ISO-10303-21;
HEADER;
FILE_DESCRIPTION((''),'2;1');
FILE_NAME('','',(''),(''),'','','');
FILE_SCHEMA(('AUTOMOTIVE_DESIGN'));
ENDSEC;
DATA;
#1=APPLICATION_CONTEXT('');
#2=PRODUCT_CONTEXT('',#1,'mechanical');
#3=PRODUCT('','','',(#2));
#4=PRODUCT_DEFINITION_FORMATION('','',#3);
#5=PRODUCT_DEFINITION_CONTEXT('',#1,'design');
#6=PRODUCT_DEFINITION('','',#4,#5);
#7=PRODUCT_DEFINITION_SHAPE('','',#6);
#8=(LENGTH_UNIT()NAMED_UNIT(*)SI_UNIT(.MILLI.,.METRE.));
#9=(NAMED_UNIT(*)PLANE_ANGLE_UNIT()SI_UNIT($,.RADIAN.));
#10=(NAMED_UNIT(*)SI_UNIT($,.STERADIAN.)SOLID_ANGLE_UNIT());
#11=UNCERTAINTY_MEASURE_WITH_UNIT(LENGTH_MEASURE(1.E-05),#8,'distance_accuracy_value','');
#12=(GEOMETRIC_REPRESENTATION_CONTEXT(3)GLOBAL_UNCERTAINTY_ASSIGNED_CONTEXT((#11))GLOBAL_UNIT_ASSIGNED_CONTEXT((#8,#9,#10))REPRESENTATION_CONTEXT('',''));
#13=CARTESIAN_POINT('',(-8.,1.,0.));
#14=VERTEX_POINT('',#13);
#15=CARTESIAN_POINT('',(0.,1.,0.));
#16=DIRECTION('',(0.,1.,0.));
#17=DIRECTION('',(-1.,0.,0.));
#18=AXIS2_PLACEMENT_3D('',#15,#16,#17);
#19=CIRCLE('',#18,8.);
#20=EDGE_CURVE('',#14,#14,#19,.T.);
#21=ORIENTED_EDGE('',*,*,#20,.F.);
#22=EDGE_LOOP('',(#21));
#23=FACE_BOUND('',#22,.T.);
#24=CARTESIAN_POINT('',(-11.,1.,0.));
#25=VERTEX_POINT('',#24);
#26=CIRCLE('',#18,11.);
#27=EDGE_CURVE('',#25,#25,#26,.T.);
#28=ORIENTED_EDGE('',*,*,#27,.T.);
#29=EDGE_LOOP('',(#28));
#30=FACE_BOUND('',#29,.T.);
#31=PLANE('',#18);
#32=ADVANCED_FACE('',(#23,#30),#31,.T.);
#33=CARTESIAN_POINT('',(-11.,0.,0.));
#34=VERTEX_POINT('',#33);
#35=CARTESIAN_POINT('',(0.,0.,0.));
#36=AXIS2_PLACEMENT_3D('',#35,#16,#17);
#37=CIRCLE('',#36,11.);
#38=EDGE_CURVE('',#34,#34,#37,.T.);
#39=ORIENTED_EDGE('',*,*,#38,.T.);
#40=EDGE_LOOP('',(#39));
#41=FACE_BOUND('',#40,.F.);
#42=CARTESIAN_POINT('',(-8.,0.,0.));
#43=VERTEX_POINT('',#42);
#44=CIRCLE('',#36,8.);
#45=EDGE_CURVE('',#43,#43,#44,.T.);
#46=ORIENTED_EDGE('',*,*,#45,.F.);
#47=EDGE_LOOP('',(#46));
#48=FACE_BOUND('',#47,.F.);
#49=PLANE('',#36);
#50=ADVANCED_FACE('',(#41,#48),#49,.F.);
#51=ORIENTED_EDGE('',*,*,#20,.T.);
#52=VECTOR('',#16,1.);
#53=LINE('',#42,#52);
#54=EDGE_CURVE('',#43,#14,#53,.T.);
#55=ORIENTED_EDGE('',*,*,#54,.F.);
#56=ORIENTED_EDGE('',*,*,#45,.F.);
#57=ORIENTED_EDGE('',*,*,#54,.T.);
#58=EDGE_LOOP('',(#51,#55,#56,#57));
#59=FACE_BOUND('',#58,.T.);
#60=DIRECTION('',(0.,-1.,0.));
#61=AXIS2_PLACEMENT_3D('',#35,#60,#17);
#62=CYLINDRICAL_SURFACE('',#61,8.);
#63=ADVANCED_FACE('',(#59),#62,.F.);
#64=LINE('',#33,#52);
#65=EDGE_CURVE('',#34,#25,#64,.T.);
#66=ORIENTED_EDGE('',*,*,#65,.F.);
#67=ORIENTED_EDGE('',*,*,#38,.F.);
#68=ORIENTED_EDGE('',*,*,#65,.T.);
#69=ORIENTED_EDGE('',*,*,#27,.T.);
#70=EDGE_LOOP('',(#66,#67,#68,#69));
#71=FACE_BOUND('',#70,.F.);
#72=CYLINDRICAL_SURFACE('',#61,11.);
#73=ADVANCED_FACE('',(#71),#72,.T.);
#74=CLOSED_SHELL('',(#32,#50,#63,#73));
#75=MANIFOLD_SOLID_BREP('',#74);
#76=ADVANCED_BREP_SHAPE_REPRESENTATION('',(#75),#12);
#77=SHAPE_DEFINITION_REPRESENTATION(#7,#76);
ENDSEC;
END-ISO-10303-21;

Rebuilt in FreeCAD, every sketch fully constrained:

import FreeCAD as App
import Part
import Sketcher

V = App.Vector

doc = App.newDocument("Part")
body = doc.addObject("PartDesign::Body", "Body")

# Sketch on XZ plane
sketch1 = body.newObject("Sketcher::SketchObject", "Sketch")
sketch1.AttachmentSupport = (doc.getObject("XZ_Plane"), [""])
sketch1.MapMode = "FlatFace"
sketch1.addGeometry([
    Part.Circle(V(0, 0, 0), V(0, 0, 1), 11),
    Part.Circle(V(0, 0, 0), V(0, 0, 1), 8),
], False)
sketch1.addConstraint([
    Sketcher.Constraint("Coincident", 0, 3, -1, 1),
    Sketcher.Constraint("Coincident", 1, 3, -1, 1),
    Sketcher.Constraint("Diameter", 0, 22.0),
    Sketcher.Constraint("Diameter", 1, 16.0),
])
pad1 = body.newObject("PartDesign::Pad", "Pad")
pad1.Profile = sketch1
pad1.Length = 1
pad1.Reversed = True

doc.recompute()
